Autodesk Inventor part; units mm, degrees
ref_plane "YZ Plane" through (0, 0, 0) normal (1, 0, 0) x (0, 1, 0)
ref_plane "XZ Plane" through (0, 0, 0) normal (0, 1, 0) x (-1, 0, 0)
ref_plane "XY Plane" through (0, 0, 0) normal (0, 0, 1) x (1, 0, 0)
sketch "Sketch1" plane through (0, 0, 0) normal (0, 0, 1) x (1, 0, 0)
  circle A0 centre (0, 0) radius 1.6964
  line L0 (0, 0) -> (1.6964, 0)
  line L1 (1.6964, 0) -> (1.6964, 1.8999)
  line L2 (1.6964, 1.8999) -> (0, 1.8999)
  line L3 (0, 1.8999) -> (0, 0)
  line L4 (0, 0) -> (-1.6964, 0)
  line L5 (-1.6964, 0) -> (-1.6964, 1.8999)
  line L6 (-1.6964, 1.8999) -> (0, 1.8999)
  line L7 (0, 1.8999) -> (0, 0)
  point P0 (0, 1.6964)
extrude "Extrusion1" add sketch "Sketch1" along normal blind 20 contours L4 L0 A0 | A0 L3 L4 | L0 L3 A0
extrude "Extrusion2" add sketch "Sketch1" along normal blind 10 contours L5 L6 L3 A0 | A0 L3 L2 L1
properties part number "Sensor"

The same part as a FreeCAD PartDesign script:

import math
import FreeCAD as App
import Part
import Sketcher
Q = App.Units.Quantity

doc = App.newDocument("Part")
body = doc.addObject("PartDesign::Body", "Body")

# Sketch on XY plane
sketch1 = body.newObject("Sketcher::SketchObject", "Sketch")
sketch1.AttachmentSupport = (doc.getObject("XY_Plane"), [""])
sketch1.MapMode = "FlatFace"
sketch1.addGeometry(Part.Circle(App.Vector(0, 0, 0), App.Vector(0, 0, 1), 1.7), False)
sketch1.addConstraint([
    Sketcher.Constraint("Coincident", 0, 3, -1, 1),
    Sketcher.Constraint("Diameter", 0, Q("3.3928 mm")),
])
pad1 = body.newObject("PartDesign::Pad", "Pad")
pad1.Profile = sketch1
pad1.Length = 20

# Sketch on XY plane
sketch2 = body.newObject("Sketcher::SketchObject", "Sketch001")
sketch2.AttachmentSupport = (doc.getObject("XY_Plane"), [""])
sketch2.MapMode = "FlatFace"
sketch2.addGeometry([
    Part.LineSegment(App.Vector(-1.7, 1.9, 0), App.Vector(-1.7, 0, 0)),
    Part.ArcOfCircle(Part.Circle(App.Vector(0, 0, 0), App.Vector(0, 0, 1), 1.7), math.radians(0), math.radians(180)),
    Part.LineSegment(App.Vector(1.7, 0, 0), App.Vector(1.7, 1.9, 0)),
    Part.LineSegment(App.Vector(1.7, 1.9, 0), App.Vector(-1.7, 1.9, 0)),
], False)
sketch2.addConstraint([
    Sketcher.Constraint("Tangent", 0, 2, 1, 2),
    Sketcher.Constraint("Tangent", 1, 1, 2, 1),
    Sketcher.Constraint("Coincident", 2, 2, 3, 1),
    Sketcher.Constraint("Coincident", 3, 2, 0, 1),
    Sketcher.Constraint("Vertical", 0),
    Sketcher.Constraint("Vertical", 2),
    Sketcher.Constraint("Horizontal", 3),
    Sketcher.Constraint("Coincident", 1, 3, -1, 1),
    Sketcher.Constraint("DistanceY", 0, 2, 0, 1, Q("1.9 mm")),
    Sketcher.Constraint("Radius", 1, Q("1.6964 mm")),
])
pad2 = body.newObject("PartDesign::Pad", "Pad001")
pad2.Profile = sketch2
pad2.Length = 10

doc.recompute()
